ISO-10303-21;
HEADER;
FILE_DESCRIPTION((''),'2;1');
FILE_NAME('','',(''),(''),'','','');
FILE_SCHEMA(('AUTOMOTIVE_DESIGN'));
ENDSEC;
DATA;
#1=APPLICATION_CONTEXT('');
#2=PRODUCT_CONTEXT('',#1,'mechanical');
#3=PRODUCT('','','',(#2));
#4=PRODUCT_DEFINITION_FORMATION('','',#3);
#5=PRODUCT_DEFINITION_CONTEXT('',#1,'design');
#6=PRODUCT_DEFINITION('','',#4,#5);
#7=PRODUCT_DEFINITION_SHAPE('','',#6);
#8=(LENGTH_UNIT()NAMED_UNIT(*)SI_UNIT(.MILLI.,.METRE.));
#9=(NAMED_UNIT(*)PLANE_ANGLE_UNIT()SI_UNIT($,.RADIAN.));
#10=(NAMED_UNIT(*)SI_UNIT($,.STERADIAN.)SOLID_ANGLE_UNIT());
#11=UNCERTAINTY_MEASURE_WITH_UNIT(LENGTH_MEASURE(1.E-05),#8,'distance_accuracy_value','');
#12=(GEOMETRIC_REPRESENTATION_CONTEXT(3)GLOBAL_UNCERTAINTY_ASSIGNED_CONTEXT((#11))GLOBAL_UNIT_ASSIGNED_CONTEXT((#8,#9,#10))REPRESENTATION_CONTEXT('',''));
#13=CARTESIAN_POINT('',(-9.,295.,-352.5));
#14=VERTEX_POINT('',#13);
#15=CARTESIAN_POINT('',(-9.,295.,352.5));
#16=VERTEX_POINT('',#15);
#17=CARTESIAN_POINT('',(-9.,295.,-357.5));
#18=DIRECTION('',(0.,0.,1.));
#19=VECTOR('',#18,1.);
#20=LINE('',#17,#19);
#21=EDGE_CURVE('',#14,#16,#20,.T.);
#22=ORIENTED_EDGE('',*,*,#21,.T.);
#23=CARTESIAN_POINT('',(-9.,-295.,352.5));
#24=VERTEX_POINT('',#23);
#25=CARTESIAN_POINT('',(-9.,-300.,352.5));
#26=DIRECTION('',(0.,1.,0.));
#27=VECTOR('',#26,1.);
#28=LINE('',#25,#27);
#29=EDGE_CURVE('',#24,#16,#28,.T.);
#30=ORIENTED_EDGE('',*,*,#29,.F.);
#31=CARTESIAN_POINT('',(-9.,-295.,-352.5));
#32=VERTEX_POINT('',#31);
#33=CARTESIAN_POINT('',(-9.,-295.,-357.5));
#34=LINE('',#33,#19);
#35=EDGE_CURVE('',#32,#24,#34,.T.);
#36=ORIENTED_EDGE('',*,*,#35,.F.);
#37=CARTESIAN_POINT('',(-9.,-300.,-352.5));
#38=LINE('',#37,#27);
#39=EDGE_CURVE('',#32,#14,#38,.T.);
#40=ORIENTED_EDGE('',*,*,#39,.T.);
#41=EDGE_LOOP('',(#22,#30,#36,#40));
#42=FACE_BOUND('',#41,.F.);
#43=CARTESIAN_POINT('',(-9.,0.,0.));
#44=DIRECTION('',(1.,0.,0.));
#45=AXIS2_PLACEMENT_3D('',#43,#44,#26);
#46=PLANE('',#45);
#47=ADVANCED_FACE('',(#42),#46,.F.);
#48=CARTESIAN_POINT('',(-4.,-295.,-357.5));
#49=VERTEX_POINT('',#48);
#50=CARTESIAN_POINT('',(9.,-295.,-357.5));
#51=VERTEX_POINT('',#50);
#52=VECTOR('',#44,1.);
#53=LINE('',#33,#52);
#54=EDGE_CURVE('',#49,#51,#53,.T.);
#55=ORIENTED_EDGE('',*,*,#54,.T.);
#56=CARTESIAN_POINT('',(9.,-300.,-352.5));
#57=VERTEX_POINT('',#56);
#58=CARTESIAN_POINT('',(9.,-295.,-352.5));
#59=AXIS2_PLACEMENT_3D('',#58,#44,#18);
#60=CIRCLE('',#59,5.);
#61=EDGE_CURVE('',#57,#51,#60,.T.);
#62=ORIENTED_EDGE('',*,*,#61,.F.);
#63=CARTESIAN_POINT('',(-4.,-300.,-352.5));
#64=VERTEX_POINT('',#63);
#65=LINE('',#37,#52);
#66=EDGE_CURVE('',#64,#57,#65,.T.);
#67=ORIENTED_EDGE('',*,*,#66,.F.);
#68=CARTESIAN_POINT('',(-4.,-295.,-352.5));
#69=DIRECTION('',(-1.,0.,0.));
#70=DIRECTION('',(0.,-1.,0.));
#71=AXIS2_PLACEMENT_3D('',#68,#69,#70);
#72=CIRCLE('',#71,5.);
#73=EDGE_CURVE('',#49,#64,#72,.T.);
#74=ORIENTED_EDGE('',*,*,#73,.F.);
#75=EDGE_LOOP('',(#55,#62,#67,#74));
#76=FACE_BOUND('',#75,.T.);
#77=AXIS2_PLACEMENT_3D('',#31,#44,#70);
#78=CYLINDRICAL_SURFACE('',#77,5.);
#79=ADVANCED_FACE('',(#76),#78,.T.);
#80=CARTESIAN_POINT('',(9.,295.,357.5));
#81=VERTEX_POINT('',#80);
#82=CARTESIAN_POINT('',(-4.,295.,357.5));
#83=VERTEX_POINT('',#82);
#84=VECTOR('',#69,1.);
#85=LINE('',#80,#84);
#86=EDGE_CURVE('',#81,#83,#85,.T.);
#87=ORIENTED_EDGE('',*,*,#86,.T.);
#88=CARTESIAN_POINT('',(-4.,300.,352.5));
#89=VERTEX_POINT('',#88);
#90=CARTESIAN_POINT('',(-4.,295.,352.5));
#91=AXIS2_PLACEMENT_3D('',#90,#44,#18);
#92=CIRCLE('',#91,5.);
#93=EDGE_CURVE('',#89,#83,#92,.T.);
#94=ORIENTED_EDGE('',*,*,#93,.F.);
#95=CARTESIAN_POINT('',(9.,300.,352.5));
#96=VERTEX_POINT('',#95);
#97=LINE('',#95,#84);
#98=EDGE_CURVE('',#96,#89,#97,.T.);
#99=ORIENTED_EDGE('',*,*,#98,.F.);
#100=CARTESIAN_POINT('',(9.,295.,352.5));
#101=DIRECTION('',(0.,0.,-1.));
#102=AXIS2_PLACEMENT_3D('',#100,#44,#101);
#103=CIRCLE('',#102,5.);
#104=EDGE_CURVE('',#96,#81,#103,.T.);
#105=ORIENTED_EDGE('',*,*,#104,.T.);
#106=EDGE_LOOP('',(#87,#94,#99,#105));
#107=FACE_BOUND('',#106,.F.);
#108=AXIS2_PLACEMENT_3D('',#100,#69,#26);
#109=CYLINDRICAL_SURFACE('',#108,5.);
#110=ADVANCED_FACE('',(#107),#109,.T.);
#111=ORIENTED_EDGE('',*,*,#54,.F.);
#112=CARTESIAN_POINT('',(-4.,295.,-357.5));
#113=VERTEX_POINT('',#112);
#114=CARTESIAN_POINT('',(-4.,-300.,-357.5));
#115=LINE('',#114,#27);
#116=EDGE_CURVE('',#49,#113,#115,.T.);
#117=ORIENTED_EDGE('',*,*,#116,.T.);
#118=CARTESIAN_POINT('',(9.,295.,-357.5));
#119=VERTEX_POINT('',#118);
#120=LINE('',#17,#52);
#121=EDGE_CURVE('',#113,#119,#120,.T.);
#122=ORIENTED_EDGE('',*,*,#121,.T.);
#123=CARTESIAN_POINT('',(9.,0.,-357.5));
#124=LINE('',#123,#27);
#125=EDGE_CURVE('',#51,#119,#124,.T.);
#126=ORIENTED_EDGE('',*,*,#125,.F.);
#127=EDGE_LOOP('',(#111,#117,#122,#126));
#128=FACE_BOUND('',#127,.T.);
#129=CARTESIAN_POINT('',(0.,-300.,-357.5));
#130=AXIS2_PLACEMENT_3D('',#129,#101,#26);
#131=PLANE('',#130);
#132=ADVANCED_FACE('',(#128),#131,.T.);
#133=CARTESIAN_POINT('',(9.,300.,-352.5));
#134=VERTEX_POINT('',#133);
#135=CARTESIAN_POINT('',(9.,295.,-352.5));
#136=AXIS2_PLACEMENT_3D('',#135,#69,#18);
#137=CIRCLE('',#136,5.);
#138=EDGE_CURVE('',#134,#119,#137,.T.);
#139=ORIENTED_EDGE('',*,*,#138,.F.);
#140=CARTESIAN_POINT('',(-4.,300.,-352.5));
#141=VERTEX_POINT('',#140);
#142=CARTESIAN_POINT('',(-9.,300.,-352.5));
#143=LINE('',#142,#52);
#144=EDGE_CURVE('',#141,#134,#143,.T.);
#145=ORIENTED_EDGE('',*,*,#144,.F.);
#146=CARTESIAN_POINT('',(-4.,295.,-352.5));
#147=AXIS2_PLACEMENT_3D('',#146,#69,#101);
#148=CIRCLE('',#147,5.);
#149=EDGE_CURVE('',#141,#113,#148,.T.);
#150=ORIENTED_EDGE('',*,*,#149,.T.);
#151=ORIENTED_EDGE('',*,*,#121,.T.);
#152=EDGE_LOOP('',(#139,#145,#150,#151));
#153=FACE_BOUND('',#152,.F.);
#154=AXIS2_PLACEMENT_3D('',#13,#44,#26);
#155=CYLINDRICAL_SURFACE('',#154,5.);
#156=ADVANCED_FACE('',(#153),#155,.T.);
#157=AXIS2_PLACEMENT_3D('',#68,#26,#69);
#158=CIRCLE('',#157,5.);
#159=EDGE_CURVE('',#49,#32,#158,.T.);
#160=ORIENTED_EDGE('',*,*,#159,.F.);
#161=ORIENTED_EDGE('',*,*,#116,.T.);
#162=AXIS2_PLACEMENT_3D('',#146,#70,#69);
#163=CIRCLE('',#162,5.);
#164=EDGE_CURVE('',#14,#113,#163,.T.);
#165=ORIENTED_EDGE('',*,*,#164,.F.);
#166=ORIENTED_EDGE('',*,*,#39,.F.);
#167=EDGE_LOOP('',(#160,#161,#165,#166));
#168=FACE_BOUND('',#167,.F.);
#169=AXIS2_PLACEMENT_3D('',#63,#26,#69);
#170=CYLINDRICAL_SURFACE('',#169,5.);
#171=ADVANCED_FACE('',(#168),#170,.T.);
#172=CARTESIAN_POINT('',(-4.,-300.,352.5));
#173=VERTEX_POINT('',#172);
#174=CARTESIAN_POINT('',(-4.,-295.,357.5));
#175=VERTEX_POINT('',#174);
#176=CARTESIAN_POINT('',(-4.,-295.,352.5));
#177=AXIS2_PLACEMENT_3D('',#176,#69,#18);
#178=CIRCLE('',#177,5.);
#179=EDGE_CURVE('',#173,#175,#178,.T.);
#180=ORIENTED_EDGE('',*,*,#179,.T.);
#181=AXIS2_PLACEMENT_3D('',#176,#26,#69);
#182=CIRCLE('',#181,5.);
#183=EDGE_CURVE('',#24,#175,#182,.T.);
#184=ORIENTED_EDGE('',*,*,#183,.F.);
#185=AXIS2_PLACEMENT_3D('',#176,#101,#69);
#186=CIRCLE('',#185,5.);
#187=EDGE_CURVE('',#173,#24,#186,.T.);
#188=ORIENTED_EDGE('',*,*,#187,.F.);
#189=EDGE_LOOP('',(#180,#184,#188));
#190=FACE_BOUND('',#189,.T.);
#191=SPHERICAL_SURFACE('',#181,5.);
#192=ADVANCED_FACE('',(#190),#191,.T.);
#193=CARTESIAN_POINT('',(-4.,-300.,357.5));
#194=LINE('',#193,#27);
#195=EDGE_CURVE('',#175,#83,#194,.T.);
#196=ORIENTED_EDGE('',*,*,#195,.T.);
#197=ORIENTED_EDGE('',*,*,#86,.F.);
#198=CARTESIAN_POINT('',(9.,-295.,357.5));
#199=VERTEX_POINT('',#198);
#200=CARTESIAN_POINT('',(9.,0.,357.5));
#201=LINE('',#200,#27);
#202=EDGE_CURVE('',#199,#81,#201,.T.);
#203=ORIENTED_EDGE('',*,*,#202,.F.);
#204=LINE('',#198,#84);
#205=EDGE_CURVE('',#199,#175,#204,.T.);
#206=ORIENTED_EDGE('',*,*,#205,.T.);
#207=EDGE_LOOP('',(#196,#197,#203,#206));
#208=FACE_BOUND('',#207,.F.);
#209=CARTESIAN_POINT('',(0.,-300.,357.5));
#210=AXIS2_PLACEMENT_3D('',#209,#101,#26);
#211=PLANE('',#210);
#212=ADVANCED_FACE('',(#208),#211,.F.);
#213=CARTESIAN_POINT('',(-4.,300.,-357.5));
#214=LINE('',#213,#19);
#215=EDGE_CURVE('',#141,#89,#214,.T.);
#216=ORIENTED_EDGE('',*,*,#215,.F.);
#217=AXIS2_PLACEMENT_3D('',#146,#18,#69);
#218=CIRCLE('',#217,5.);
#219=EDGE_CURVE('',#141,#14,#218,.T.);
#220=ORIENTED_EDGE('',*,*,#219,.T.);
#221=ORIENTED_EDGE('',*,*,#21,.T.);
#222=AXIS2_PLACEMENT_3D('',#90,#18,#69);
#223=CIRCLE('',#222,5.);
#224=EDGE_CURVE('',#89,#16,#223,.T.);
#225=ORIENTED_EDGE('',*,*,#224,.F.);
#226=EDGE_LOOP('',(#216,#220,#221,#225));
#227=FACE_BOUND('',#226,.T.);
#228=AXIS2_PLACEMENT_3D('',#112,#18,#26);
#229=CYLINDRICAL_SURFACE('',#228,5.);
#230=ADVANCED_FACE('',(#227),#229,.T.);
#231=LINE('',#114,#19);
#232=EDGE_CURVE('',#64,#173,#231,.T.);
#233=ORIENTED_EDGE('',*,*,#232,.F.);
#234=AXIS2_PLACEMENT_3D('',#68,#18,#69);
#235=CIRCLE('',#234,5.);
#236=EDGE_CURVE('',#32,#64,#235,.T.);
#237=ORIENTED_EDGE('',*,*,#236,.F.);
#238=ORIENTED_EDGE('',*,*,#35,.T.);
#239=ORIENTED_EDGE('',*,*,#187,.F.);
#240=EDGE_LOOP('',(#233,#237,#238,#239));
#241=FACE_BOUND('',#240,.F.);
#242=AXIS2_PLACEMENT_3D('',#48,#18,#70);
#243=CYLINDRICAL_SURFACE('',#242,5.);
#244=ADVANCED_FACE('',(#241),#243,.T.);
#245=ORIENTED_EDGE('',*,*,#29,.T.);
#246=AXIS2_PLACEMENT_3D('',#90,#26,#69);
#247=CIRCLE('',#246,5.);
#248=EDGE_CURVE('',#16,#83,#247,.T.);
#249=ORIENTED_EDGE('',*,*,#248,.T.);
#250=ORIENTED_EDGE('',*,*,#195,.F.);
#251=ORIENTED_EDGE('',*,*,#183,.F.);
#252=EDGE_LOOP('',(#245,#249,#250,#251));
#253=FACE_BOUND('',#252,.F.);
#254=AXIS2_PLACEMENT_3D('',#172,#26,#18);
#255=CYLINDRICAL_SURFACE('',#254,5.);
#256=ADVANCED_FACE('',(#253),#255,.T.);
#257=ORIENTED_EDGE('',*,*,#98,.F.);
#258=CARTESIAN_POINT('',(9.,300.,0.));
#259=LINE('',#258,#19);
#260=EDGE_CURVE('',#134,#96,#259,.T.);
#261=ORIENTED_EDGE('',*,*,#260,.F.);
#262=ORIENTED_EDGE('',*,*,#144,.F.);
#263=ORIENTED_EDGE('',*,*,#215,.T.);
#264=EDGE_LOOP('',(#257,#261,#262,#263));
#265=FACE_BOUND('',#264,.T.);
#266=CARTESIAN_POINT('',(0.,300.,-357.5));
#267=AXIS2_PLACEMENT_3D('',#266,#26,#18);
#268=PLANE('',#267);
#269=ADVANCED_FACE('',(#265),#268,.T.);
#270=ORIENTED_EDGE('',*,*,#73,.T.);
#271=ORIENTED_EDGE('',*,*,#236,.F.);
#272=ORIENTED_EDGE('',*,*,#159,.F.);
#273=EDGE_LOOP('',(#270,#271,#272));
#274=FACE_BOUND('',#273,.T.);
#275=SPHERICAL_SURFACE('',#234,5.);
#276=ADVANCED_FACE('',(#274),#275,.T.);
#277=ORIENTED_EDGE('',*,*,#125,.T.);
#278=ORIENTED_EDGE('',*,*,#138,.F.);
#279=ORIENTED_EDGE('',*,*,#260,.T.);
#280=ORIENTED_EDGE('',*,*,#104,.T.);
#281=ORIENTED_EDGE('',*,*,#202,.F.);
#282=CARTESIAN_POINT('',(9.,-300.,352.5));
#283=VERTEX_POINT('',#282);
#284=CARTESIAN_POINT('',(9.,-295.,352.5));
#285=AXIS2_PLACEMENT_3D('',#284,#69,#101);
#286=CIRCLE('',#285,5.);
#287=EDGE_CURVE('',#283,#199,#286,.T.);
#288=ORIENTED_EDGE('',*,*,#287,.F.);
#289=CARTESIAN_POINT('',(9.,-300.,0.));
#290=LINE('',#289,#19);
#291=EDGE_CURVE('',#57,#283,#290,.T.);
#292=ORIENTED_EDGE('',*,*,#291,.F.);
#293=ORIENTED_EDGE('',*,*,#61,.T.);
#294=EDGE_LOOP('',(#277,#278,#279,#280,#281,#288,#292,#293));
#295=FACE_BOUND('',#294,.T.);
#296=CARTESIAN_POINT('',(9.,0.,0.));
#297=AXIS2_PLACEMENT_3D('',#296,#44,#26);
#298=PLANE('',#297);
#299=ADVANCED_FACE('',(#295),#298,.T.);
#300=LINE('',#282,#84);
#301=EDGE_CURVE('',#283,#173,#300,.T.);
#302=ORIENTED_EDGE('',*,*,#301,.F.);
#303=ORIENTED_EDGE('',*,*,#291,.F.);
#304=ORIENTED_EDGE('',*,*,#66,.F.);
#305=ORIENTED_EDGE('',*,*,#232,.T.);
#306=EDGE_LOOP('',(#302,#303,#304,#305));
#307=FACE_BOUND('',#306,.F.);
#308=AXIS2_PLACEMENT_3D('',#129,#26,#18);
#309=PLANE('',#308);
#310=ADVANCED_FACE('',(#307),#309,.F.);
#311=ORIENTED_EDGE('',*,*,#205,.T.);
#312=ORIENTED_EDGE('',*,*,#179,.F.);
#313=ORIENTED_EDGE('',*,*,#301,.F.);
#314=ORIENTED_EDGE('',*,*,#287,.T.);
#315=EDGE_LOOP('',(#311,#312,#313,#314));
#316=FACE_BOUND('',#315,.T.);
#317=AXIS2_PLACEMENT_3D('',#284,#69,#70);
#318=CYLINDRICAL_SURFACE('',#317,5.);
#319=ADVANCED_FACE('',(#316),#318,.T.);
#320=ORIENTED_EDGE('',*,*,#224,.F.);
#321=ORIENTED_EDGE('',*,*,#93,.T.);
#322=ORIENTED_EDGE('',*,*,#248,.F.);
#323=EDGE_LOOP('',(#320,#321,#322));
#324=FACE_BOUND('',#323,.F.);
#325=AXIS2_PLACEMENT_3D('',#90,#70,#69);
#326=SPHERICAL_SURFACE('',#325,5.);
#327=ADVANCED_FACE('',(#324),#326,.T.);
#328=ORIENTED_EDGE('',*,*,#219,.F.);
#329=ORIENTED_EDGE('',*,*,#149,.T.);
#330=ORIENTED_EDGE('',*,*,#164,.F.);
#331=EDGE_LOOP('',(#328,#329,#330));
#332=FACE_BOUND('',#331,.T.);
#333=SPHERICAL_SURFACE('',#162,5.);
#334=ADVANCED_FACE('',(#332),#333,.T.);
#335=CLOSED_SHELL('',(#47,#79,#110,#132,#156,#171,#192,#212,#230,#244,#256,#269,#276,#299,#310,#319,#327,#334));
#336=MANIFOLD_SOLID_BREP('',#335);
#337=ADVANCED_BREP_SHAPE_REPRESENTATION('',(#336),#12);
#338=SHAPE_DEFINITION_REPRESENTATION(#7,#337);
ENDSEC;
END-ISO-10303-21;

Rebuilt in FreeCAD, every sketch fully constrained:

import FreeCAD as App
import Part
import Sketcher

V = App.Vector


def edges_at(feature, points):
    """Names of the edges that pass closest to the given points."""
    edges = feature.Shape.Edges
    near = lambda p: min(range(len(edges)), key=lambda i: edges[i].distToShape(Part.Vertex(*p))[0])
    return sorted({f"Edge{near(p) + 1}" for p in points})


def add_polygon(sketch, points):
    """Adds a closed chain of lines whose ends are joined by coincident constraints."""
    first, n = sketch.GeometryCount, len(points)
    for a, b in zip(points, points[1:] + points[:1]):
        sketch.addGeometry(Part.LineSegment(App.Vector(*a, 0), App.Vector(*b, 0)), False)
    for i in range(n):
        sketch.addConstraint(Sketcher.Constraint("Coincident", first + i, 2, first + (i + 1) % n, 1))

doc = App.newDocument("Part")
body = doc.addObject("PartDesign::Body", "Body")

# Sketch on YZ plane
sketch1 = doc.addObject("Sketcher::SketchObject", "Sketch")
body.addObject(sketch1)
sketch1.AttachmentSupport = (doc.YZ_Plane, [""])
sketch1.MapMode = "FlatFace"
add_polygon(sketch1, [(-300, 357.5), (-300, -357.5), (300, -357.5), (300, 357.5)])  # lines 0-3
sketch1.addConstraint(Sketcher.Constraint("Vertical", 0))
sketch1.addConstraint(Sketcher.Constraint("Horizontal", 1))
sketch1.addConstraint(Sketcher.Constraint("Vertical", 2))
sketch1.addConstraint(Sketcher.Constraint("Horizontal", 3))
sketch1.addConstraint(Sketcher.Constraint("Symmetric", 0, 2, 2, 2, -1, 1))
sketch1.addConstraint(Sketcher.Constraint("DistanceX", 1, 1, 1, 2, 600.0))
sketch1.addConstraint(Sketcher.Constraint("DistanceY", 0, 2, 0, 1, 715.0))
pad1 = doc.addObject("PartDesign::Pad", "Pad")
body.addObject(pad1)
pad1.Profile = sketch1
pad1.Length = 18
pad1.Midplane = True
doc.recompute()

fillet = doc.addObject("PartDesign::Fillet", "Fillet")
body.addObject(fillet)
fillet.Base = (pad1, edges_at(pad1, [
    (-9, 0, 357.5),
    (-9, -300, 0),
    (-9, 0, -357.5),
    (-9, 300, 0),
    (0, 300, 357.5),
    (0, 300, -357.5),
    (0, -300, -357.5),
    (0, -300, 357.5),
]))
fillet.Radius = 5

doc.recompute()
